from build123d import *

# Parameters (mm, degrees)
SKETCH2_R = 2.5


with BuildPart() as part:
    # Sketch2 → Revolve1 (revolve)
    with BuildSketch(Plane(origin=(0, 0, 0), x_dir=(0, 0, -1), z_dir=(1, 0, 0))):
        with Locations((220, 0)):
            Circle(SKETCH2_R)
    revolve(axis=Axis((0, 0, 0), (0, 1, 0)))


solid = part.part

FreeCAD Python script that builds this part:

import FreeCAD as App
import Part
import Sketcher

V = App.Vector
Q = App.Units.Quantity

doc = App.newDocument("Part")
body = doc.addObject("PartDesign::Body", "Body")

sketch1 = body.newObject("Sketcher::SketchObject", "Sketch")
sketch1.AttachmentSupport = (doc.getObject("YZ_Plane"), [""])
sketch1.MapMode = "FlatFace"
sketch1.addGeometry(Part.Circle(V(0, -220, 0), V(0, 0, 1), 2.5), False)
sketch1.addConstraint(Sketcher.Constraint("PointOnObject", 0, 3, -2))
sketch1.addConstraint(Sketcher.Constraint("Diameter", 0, Q("5 mm")))
sketch1.addConstraint(Sketcher.Constraint("DistanceY", 0, 3, -1, 1, Q("220 mm")))
revolution = body.newObject("PartDesign::Revolution", "Revolution")
revolution.Profile = sketch1
revolution.ReferenceAxis = (sketch1, ["H_Axis"])
revolution.Angle = 360

doc.recompute()
